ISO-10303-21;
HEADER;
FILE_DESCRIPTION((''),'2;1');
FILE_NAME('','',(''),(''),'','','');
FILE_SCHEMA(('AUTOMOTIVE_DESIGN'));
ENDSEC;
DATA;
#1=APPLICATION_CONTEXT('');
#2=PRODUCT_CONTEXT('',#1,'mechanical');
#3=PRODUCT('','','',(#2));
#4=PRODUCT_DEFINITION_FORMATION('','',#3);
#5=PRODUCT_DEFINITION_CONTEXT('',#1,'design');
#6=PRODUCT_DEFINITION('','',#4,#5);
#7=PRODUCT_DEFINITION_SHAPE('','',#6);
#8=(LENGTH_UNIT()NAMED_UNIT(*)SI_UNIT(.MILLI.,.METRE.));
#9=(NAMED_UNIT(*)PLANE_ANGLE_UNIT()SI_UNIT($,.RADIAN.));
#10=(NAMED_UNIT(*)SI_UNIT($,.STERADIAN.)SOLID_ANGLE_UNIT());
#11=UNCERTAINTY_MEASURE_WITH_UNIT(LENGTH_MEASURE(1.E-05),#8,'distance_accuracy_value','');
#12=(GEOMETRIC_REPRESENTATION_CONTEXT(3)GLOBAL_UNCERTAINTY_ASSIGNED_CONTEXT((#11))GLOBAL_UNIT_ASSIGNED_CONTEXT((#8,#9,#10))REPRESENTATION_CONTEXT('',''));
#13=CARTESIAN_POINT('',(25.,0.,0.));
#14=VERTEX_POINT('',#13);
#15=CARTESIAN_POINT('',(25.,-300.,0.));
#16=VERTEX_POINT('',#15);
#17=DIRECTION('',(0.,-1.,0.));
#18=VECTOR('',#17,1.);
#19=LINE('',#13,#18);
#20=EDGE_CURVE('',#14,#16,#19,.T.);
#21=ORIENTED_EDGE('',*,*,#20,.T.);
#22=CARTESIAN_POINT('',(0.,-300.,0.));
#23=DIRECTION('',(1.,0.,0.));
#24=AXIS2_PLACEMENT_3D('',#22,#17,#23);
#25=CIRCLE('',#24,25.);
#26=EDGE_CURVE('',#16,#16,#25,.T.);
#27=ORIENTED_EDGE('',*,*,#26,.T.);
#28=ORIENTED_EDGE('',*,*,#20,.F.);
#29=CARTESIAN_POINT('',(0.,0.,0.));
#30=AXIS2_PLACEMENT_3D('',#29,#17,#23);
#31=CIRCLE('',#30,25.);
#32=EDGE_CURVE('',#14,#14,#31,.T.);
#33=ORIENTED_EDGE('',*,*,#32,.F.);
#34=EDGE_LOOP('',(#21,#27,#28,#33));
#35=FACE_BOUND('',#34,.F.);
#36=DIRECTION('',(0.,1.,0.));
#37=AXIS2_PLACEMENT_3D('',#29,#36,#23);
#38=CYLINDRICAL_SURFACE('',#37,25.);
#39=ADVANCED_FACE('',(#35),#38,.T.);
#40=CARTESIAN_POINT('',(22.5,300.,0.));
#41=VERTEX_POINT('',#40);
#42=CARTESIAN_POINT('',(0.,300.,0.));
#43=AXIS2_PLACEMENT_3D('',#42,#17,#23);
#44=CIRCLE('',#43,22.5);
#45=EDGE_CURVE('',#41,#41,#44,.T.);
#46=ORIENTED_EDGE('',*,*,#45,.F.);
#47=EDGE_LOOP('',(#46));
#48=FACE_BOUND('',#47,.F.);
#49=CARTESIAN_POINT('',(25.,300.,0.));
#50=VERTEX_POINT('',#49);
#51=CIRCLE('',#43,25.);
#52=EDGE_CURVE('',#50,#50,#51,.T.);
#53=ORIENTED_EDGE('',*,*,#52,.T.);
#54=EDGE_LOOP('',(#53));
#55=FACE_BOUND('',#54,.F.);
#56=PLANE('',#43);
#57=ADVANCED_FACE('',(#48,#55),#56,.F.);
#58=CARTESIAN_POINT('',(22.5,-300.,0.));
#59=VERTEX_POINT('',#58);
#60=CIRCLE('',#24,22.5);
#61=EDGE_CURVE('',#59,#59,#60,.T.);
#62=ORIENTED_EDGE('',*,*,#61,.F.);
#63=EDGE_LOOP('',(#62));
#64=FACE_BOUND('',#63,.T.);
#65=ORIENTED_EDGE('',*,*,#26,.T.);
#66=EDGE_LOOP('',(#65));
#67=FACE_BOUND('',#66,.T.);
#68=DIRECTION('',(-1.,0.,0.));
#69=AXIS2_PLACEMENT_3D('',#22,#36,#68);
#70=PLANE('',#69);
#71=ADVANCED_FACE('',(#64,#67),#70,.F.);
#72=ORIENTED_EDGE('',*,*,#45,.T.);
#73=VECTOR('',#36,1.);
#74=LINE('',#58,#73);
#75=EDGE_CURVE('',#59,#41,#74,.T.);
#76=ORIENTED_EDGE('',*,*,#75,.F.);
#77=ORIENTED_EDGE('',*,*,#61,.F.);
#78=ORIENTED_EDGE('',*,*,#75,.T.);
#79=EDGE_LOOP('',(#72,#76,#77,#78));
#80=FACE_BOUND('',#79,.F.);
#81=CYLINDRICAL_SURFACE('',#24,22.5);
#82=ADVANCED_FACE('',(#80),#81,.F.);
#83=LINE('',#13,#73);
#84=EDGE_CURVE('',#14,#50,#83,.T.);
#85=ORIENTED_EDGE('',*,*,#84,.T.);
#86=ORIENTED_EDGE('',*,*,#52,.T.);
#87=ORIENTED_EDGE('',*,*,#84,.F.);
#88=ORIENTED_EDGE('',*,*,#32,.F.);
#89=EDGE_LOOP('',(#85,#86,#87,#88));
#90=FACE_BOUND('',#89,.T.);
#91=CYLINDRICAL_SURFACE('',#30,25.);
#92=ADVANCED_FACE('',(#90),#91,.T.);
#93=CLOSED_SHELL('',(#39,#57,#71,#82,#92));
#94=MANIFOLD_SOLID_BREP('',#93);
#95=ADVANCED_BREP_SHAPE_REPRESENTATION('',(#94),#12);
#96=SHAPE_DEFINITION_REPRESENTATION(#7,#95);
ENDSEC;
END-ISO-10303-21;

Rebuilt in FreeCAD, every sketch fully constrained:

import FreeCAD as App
import Part
import Sketcher

V = App.Vector
Q = App.Units.Quantity

doc = App.newDocument("Part")
params = doc.addObject("Spreadsheet::Sheet", "Params")
for row, (alias, value) in enumerate([
    ("sketch1_diameter", "50 mm"),
    ("pad1_length", "300 mm"),
    ("sketch2_diameter", "45 mm"),
    ("pocket1_length", "600 mm"),
], start=1):
    params.set(f"A{row}", alias)
    params.set(f"B{row}", "=" + value)
    params.setAlias(f"B{row}", alias)

body = doc.addObject("PartDesign::Body", "Body")

sketch1 = body.newObject("Sketcher::SketchObject", "Sketch")
sketch1.AttachmentSupport = (doc.getObject("XZ_Plane"), [""])
sketch1.MapMode = "FlatFace"
sketch1.addGeometry(Part.Circle(V(0, 0, 0), V(0, 0, 1), 25), False)
sketch1.addConstraint(Sketcher.Constraint("Coincident", 0, 3, -1, 1))
sketch1.addConstraint(Sketcher.Constraint("Diameter", 0, Q("50 mm")))
sketch1.setExpression("Constraints[1]", "Params.sketch1_diameter")
pad1 = body.newObject("PartDesign::Pad", "Pad")
pad1.Profile = sketch1
pad1.setExpression("Length", "Params.pad1_length")
pad1.Reversed = True
body2 = doc.addObject("PartDesign::Body", "Body001")
doc.recompute()

body2.BaseFeature = body
doc.recompute()

mirroring = doc.addObject("Part::Mirroring", "Mirroring")
mirroring.Source = body
mirroring.Base = V(0, 0, 0)
mirroring.Normal = V(0, -1, 0)
body3 = doc.addObject("PartDesign::Body", "Body002")
body3.BaseFeature = mirroring
boolean = body2.newObject("PartDesign::Boolean", "Boolean")
boolean.Type = "Fuse"
boolean.addObjects([body3])
doc.recompute()

sketch2 = body2.newObject("Sketcher::SketchObject", "Sketch001")
sketch2.AttachmentSupport = (doc.getObject("XZ_Plane001"), [""])
sketch2.MapMode = "FlatFace"
sketch2.AttachmentOffset = App.Placement(V(0, 0, 300), App.Rotation())
sketch2.addGeometry(Part.Circle(V(0, 0, 0), V(0, 0, 1), 22), False)
sketch2.addConstraint(Sketcher.Constraint("Coincident", 0, 3, -1, 1))
sketch2.addConstraint(Sketcher.Constraint("Diameter", 0, Q("45 mm")))
sketch2.setExpression("Constraints[1]", "Params.sketch2_diameter")
pocket1 = body2.newObject("PartDesign::Pocket", "Pocket")
pocket1.Profile = sketch2
pocket1.setExpression("Length", "Params.pocket1_length")
mirroring.Visibility = False

doc.recompute()
